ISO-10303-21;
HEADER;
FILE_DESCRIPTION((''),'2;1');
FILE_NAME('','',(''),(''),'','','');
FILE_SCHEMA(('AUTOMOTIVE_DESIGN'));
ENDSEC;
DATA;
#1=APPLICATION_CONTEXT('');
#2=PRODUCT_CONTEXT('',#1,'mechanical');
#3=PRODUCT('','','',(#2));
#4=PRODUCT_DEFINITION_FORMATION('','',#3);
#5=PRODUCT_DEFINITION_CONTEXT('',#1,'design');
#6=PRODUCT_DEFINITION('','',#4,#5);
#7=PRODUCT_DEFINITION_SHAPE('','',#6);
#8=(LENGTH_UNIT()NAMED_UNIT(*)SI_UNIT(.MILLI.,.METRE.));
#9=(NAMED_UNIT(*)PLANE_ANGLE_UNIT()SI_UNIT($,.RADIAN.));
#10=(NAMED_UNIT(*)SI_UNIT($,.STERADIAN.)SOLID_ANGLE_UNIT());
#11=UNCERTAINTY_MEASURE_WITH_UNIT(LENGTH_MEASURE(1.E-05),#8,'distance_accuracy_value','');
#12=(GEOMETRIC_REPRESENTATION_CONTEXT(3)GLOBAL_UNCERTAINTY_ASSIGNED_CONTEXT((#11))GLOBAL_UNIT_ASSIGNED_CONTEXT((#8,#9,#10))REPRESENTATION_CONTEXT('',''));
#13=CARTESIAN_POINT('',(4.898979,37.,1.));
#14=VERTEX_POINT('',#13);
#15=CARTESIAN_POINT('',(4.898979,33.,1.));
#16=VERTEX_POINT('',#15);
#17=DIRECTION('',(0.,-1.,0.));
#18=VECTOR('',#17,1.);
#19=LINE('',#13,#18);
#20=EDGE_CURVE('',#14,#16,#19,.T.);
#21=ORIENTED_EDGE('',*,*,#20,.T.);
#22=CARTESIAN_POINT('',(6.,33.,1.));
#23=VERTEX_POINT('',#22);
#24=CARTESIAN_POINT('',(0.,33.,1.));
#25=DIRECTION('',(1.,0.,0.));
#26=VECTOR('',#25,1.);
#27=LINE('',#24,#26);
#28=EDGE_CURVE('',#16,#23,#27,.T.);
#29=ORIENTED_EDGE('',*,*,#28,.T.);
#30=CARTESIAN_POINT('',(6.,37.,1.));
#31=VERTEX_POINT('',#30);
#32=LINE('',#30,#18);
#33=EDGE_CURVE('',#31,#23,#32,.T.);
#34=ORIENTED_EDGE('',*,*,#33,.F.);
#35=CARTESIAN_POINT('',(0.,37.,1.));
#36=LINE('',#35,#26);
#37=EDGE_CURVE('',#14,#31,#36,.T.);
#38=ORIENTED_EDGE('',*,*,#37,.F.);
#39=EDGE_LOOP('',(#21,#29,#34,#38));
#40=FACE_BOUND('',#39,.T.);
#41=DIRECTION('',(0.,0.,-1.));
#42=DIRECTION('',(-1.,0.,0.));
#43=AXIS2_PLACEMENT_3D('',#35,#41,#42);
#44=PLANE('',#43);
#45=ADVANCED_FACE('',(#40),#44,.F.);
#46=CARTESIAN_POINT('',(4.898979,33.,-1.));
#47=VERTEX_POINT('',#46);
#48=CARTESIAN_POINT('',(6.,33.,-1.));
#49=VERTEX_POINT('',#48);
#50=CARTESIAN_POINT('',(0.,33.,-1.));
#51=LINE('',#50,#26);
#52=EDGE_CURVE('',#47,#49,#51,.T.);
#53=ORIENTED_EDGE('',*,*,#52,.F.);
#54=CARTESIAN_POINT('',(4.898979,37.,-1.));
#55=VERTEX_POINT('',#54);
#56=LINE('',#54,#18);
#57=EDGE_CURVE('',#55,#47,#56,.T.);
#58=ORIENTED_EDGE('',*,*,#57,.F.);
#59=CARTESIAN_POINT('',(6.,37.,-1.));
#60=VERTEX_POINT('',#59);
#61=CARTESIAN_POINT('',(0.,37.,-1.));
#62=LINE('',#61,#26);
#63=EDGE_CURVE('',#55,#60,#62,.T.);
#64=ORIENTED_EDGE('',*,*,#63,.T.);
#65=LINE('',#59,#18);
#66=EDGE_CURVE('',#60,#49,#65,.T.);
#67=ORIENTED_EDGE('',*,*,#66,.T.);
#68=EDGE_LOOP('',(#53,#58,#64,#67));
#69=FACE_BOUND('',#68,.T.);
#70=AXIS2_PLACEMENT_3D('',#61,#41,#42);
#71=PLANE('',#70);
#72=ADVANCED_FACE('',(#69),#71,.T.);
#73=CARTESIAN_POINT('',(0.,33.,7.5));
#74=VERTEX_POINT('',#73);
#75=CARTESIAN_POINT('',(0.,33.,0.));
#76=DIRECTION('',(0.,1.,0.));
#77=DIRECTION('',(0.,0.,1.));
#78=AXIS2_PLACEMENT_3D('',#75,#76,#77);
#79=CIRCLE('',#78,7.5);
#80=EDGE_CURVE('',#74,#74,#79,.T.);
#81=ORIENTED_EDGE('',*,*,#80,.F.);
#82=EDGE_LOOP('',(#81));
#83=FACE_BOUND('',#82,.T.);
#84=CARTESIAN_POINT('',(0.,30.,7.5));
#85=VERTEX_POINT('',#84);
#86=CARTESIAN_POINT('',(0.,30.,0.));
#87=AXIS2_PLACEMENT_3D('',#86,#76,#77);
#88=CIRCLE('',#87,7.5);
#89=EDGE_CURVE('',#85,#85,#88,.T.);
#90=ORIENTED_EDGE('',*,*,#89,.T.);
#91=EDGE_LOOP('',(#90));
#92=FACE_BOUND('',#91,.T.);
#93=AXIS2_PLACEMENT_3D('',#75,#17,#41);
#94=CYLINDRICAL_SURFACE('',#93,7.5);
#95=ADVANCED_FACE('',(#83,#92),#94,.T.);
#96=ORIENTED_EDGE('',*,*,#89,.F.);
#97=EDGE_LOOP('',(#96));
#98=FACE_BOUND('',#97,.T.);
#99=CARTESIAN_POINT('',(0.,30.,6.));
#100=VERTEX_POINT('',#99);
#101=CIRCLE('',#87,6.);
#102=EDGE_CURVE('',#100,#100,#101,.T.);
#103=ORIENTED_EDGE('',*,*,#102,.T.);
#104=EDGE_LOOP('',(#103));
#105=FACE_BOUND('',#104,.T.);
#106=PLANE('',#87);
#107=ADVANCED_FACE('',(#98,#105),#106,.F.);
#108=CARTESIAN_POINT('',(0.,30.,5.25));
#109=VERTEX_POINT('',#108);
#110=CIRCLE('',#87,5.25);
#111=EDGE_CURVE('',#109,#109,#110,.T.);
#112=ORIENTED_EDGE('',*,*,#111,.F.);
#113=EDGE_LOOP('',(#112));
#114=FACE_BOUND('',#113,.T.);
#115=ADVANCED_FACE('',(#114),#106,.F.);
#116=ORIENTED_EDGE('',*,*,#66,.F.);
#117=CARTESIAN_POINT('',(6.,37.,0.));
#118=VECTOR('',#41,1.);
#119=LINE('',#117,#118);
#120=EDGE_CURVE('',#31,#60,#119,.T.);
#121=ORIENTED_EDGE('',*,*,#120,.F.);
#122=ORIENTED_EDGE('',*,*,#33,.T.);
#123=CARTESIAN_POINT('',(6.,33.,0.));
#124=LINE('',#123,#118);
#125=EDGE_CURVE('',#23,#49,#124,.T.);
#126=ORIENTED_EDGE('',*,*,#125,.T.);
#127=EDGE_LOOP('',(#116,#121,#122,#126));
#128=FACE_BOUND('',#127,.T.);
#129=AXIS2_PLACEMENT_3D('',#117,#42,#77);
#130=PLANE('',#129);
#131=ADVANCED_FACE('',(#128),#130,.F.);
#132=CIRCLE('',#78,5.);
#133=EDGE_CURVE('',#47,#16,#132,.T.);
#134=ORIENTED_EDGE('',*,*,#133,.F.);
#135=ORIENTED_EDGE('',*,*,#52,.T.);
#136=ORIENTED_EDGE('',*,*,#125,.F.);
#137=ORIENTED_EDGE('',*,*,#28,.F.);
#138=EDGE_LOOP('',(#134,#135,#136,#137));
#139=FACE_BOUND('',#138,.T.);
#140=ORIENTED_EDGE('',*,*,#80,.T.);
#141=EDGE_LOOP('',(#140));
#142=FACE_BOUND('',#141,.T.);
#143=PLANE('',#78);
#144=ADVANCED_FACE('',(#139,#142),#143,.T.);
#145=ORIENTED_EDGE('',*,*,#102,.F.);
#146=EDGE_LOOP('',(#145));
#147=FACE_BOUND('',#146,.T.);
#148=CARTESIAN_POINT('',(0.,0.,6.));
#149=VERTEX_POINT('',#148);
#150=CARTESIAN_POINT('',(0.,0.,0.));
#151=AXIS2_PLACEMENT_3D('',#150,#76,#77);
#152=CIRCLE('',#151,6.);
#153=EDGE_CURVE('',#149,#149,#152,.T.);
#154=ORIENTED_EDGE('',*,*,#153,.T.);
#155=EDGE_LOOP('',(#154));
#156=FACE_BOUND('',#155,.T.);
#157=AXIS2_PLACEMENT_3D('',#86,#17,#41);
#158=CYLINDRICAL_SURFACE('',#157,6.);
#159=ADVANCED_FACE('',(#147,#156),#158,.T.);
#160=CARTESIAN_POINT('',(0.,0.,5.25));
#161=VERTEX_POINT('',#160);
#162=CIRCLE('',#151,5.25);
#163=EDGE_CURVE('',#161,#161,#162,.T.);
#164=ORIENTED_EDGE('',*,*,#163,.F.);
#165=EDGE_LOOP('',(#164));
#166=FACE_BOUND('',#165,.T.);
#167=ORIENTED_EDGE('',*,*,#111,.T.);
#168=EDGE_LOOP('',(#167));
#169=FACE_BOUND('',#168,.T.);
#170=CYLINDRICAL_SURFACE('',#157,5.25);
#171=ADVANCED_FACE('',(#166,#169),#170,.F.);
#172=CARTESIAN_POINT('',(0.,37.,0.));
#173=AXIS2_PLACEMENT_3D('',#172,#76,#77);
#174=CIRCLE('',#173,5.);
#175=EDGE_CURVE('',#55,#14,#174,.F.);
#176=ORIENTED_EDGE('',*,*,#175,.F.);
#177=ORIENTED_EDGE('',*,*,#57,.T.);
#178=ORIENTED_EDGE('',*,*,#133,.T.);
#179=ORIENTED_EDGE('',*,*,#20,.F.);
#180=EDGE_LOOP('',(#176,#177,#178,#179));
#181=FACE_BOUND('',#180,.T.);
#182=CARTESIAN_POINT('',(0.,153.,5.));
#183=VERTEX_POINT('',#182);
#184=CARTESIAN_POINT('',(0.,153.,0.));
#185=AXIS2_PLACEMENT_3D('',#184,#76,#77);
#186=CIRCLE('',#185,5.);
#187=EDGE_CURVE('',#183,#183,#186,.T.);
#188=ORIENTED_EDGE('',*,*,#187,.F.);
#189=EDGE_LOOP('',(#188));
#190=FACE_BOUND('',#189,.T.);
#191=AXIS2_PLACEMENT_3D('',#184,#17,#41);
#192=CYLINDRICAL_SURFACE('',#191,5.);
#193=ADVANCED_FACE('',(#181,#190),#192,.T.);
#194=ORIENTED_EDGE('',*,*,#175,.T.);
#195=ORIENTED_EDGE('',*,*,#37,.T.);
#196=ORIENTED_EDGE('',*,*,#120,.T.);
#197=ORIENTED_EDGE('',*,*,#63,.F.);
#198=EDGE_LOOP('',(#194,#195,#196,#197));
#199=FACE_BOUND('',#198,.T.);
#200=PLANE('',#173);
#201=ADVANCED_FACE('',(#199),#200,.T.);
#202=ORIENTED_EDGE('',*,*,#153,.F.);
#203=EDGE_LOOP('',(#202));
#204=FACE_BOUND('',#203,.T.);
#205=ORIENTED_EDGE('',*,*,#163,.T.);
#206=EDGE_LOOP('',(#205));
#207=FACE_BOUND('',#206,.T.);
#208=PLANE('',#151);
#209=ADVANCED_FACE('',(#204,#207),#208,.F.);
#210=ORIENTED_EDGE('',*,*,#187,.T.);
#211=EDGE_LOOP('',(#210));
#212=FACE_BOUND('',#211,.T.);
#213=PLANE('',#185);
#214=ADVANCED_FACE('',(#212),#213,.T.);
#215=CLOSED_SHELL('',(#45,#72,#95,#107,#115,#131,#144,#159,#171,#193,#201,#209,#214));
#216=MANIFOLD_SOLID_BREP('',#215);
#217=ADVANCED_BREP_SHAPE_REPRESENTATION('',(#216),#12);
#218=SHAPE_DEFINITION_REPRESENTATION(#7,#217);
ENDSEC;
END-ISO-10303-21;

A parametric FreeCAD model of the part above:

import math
import FreeCAD as App
import Part
import Sketcher

doc = App.newDocument("Part")
body = doc.addObject("PartDesign::Body", "Body")

# Sketch on XZ plane
sketch1 = doc.addObject("Sketcher::SketchObject", "Sketch")
body.addObject(sketch1)
sketch1.AttachmentSupport = (doc.XZ_Plane, [""])
sketch1.MapMode = "FlatFace"
sketch1.addGeometry([
    Part.Circle(App.Vector(0, 0, 0), App.Vector(0, 0, 1), 6),
    Part.Circle(App.Vector(0, 0, 0), App.Vector(0, 0, 1), 5),
], False)
sketch1.addConstraint([
    Sketcher.Constraint("Coincident", 0, 3, -1, 1),
    Sketcher.Constraint("Coincident", 1, 3, -1, 1),
    Sketcher.Constraint("Diameter", 0, 12.0),
    Sketcher.Constraint("Diameter", 1, 10.5),
])
pad1 = doc.addObject("PartDesign::Pad", "Pad")
body.addObject(pad1)
pad1.Profile = sketch1
pad1.Length = 30
pad1.Reversed = True

# Sketch on XZ plane
sketch2 = doc.addObject("Sketcher::SketchObject", "Sketch001")
body.addObject(sketch2)
sketch2.AttachmentSupport = (doc.XZ_Plane, [""])
sketch2.MapMode = "FlatFace"
sketch2.AttachmentOffset = App.Placement(App.Vector(0, 0, -30), App.Rotation())
sketch2.addGeometry(Part.Circle(App.Vector(0, 0, 0), App.Vector(0, 0, 1), 8), False)
sketch2.addConstraint([
    Sketcher.Constraint("Coincident", 0, 3, -1, 1),
    Sketcher.Constraint("Diameter", 0, 15.0),
])
pad2 = doc.addObject("PartDesign::Pad", "Pad001")
body.addObject(pad2)
pad2.Profile = sketch2
pad2.Length = 3
pad2.Reversed = True

# Sketch on XZ plane
sketch3 = doc.addObject("Sketcher::SketchObject", "Sketch002")
body.addObject(sketch3)
sketch3.AttachmentSupport = (doc.XZ_Plane, [""])
sketch3.MapMode = "FlatFace"
sketch3.AttachmentOffset = App.Placement(App.Vector(0, 0, -33), App.Rotation())
sketch3.addGeometry(Part.Circle(App.Vector(0, 0, 0), App.Vector(0, 0, 1), 5), False)
sketch3.addConstraint([
    Sketcher.Constraint("Coincident", 0, 3, -1, 1),
    Sketcher.Constraint("Diameter", 0, 10.0),
])
pad3 = doc.addObject("PartDesign::Pad", "Pad002")
body.addObject(pad3)
pad3.Profile = sketch3
pad3.Length = 120
pad3.Reversed = True

# Sketch on XZ plane
sketch4 = doc.addObject("Sketcher::SketchObject", "Sketch003")
body.addObject(sketch4)
sketch4.AttachmentSupport = (doc.XZ_Plane, [""])
sketch4.MapMode = "FlatFace"
sketch4.AttachmentOffset = App.Placement(App.Vector(0, 0, -33), App.Rotation())
sketch4.addGeometry([
    Part.LineSegment(App.Vector(6, -1, 0), App.Vector(4.9, -1, 0)),  # 0
    Part.ArcOfCircle(Part.Circle(App.Vector(0, 0, 0), App.Vector(0, 0, 1), 5), math.radians(-11.54), math.radians(0)),  # 1
    Part.ArcOfCircle(Part.Circle(App.Vector(0, 0, 0), App.Vector(0, 0, 1), 5), math.radians(0), math.radians(11.54)),  # 2
    Part.LineSegment(App.Vector(4.9, 1, 0), App.Vector(6, 1, 0)),  # 3
    Part.LineSegment(App.Vector(6, 1, 0), App.Vector(6, -1, 0)),  # 4
], False)
sketch4.addConstraint([
    Sketcher.Constraint("Coincident", 0, 2, 1, 1),
    Sketcher.Constraint("Tangent", 1, 2, 2, 1),
    Sketcher.Constraint("Coincident", 2, 2, 3, 1),
    Sketcher.Constraint("Coincident", 3, 2, 4, 1),
    Sketcher.Constraint("Coincident", 4, 2, 0, 1),
    Sketcher.Constraint("Horizontal", 0),
    Sketcher.Constraint("Horizontal", 3),
    Sketcher.Constraint("Vertical", 4),
    Sketcher.Constraint("Coincident", 1, 3, -1, 1),
    Sketcher.Constraint("Equal", 1, 2),
    Sketcher.Constraint("PointOnObject", 1, 2, -1),
    Sketcher.Constraint("Vertical", 0, 2, 2, 2),
    Sketcher.Constraint("Radius", 1, 5.0),
    Sketcher.Constraint("DistanceY", 4, 2, 4, 1, 2.0),
    Sketcher.Constraint("DistanceX", -1, 1, 3, 2, 6.0),
])
pad4 = doc.addObject("PartDesign::Pad", "Pad003")
body.addObject(pad4)
pad4.Profile = sketch4
pad4.Length = 4
pad4.Reversed = True

doc.recompute()
